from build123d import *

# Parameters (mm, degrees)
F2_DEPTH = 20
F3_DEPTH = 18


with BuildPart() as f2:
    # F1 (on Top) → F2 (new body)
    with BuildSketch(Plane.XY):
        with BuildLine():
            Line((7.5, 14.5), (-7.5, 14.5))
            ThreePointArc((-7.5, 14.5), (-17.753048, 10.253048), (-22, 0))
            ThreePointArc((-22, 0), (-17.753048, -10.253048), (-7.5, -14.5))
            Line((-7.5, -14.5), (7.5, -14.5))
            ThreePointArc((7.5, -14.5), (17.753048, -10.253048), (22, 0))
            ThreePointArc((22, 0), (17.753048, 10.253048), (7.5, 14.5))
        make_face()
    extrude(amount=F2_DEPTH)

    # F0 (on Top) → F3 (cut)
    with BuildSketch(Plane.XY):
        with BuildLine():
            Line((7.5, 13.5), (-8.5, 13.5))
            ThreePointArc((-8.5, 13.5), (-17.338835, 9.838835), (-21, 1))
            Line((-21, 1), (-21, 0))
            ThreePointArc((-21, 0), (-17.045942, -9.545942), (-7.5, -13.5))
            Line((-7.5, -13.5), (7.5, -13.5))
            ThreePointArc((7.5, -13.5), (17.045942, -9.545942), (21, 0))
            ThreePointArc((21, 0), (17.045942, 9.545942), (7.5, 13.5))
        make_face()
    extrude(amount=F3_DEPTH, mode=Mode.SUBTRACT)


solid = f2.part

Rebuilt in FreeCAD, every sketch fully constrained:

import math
import FreeCAD as App
import Part
import Sketcher
from FreeCAD import Vector
Q = App.Units.Quantity

doc = App.newDocument("Part")
body = doc.addObject("PartDesign::Body", "Body")

sketch1 = doc.addObject("Sketcher::SketchObject", "Sketch")
body.addObject(sketch1)
sketch1.AttachmentSupport = (doc.XY_Plane, [""])
sketch1.MapMode = "FlatFace"
sketch1.addGeometry([
    Part.LineSegment(Vector(8, 14, 0), Vector(-8, 14, 0)),
    Part.ArcOfCircle(Part.Circle(Vector(-7, 0, 0), Vector(0, 0, 1), 15), math.radians(90), math.radians(180)),
    Part.ArcOfCircle(Part.Circle(Vector(-7, 0, 0), Vector(0, 0, 1), 15), math.radians(-180), math.radians(-90)),
    Part.LineSegment(Vector(-8, -14, 0), Vector(8, -14, 0)),
    Part.ArcOfCircle(Part.Circle(Vector(7, 0, 0), Vector(0, 0, 1), 15), math.radians(-90), math.radians(0)),
    Part.ArcOfCircle(Part.Circle(Vector(7, 0, 0), Vector(0, 0, 1), 15), math.radians(0), math.radians(90)),
], False)
sketch1.addConstraint([
    Sketcher.Constraint("Tangent", 0, 2, 1, 1),
    Sketcher.Constraint("Tangent", 1, 2, 2, 1),
    Sketcher.Constraint("Tangent", 2, 2, 3, 1),
    Sketcher.Constraint("Tangent", 3, 2, 4, 1),
    Sketcher.Constraint("Tangent", 4, 2, 5, 1),
    Sketcher.Constraint("Tangent", 5, 2, 0, 1),
    Sketcher.Constraint("Horizontal", 0),
    Sketcher.Constraint("Horizontal", 3),
    Sketcher.Constraint("Equal", 1, 2),
    Sketcher.Constraint("Equal", 2, 4),
    Sketcher.Constraint("Symmetric", 1, 3, 4, 3, -1, 1),
    Sketcher.Constraint("PointOnObject", 1, 2, -1),
    Sketcher.Constraint("PointOnObject", 4, 2, -1),
    Sketcher.Constraint("Radius", 1, Q("14.500001 mm")),
    Sketcher.Constraint("DistanceX", 0, 2, 0, 1, Q("15 mm")),
])
pad1 = doc.addObject("PartDesign::Pad", "Pad")
body.addObject(pad1)
pad1.Profile = sketch1
pad1.Length = 20

sketch2 = doc.addObject("Sketcher::SketchObject", "Sketch001")
body.addObject(sketch2)
sketch2.AttachmentSupport = (doc.XY_Plane, [""])
sketch2.MapMode = "FlatFace"
sketch2.addGeometry([
    Part.LineSegment(Vector(7.5, 13.5, 0), Vector(-8.5, 13.5, 0)),
    Part.ArcOfCircle(Part.Circle(Vector(-8.5, 1, 0), Vector(0, 0, 1), 12.5), math.radians(90), math.radians(180)),
    Part.LineSegment(Vector(-21, 1, 0), Vector(-21, 0, 0)),
    Part.ArcOfCircle(Part.Circle(Vector(-7.5, 0, 0), Vector(0, 0, 1), 13.5), math.radians(180), math.radians(270)),
    Part.LineSegment(Vector(-7.5, -13.5, 0), Vector(7.5, -13.5, 0)),
    Part.ArcOfCircle(Part.Circle(Vector(7.5, 0, 0), Vector(0, 0, 1), 13.5), math.radians(-90), math.radians(0)),
    Part.ArcOfCircle(Part.Circle(Vector(7.5, 0, 0), Vector(0, 0, 1), 13.5), math.radians(0), math.radians(90)),
], False)
sketch2.addConstraint([
    Sketcher.Constraint("Tangent", 0, 2, 1, 1),
    Sketcher.Constraint("Tangent", 1, 2, 2, 1),
    Sketcher.Constraint("Tangent", 2, 2, 3, 1),
    Sketcher.Constraint("Tangent", 3, 2, 4, 1),
    Sketcher.Constraint("Tangent", 4, 2, 5, 1),
    Sketcher.Constraint("Tangent", 5, 2, 6, 1),
    Sketcher.Constraint("Tangent", 6, 2, 0, 1),
    Sketcher.Constraint("Horizontal", 0),
    Sketcher.Constraint("Vertical", 2),
    Sketcher.Constraint("Horizontal", 4),
    Sketcher.Constraint("Equal", 3, 5),
    Sketcher.Constraint("Equal", 5, 6),
    Sketcher.Constraint("Symmetric", 3, 3, 5, 3, -1, 1),
    Sketcher.Constraint("PointOnObject", 5, 2, -1),
    Sketcher.Constraint("Radius", 1, Q("12.499999 mm")),
    Sketcher.Constraint("Radius", 3, Q("13.499998 mm")),
    Sketcher.Constraint("DistanceX", 0, 2, 0, 1, Q("16 mm")),
])
pocket1 = doc.addObject("PartDesign::Pocket", "Pocket")
body.addObject(pocket1)
pocket1.Profile = sketch2
pocket1.Length = 18
pocket1.Reversed = True

doc.recompute()
